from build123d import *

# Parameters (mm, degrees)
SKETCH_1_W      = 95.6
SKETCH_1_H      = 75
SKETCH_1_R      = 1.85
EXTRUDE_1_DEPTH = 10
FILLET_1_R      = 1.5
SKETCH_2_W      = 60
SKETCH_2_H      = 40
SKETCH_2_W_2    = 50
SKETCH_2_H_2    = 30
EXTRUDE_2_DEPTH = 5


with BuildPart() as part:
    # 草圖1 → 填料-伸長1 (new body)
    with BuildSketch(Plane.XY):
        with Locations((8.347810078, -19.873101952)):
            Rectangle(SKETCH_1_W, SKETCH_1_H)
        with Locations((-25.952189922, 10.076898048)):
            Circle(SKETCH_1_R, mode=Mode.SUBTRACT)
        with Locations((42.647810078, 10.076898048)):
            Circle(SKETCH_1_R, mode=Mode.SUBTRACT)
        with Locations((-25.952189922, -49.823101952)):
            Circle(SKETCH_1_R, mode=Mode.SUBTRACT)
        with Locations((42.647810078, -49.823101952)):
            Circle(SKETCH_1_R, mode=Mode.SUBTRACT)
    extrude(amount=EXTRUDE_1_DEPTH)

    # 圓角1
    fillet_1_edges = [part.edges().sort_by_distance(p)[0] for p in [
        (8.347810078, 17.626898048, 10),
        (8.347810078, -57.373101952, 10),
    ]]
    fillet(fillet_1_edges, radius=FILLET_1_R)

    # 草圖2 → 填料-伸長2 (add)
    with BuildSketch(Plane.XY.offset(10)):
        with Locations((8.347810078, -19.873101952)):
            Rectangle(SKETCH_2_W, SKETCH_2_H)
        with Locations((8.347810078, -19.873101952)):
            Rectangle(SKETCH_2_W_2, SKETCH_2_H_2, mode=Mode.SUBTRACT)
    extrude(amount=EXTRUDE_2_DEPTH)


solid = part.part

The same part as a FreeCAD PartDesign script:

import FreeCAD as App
import Part
import Sketcher
Q = App.Units.Quantity


def edges_at(feature, points):
    """Names of the edges that pass closest to the given points."""
    edges = feature.Shape.Edges
    near = lambda p: min(range(len(edges)), key=lambda i: edges[i].distToShape(Part.Vertex(*p))[0])
    return sorted({f"Edge{near(p) + 1}" for p in points})

doc = App.newDocument("Part")
body = doc.addObject("PartDesign::Body", "Body")

sketch1 = body.newObject("Sketcher::SketchObject", "Sketch")
sketch1.AttachmentSupport = (doc.getObject("XY_Plane"), [""])
sketch1.MapMode = "FlatFace"
sketch1.addGeometry([
    Part.LineSegment(App.Vector(-39.5, 17.6, 0), App.Vector(-39.5, -57.4, 0)),
    Part.LineSegment(App.Vector(-39.5, -57.4, 0), App.Vector(56.1, -57.4, 0)),
    Part.LineSegment(App.Vector(56.1, -57.4, 0), App.Vector(56.1, 17.6, 0)),
    Part.LineSegment(App.Vector(56.1, 17.6, 0), App.Vector(-39.5, 17.6, 0)),
    Part.Circle(App.Vector(-26, -49.8, 0), App.Vector(0, 0, 1), 1.9),
    Part.Circle(App.Vector(42.6, -49.8, 0), App.Vector(0, 0, 1), 1.9),
    Part.Circle(App.Vector(-26, 10.1, 0), App.Vector(0, 0, 1), 1.9),
    Part.Circle(App.Vector(42.6, 10.1, 0), App.Vector(0, 0, 1), 1.9),
], False)
sketch1.addConstraint([
    Sketcher.Constraint("Coincident", 0, 2, 1, 1),
    Sketcher.Constraint("Coincident", 1, 2, 2, 1),
    Sketcher.Constraint("Coincident", 2, 2, 3, 1),
    Sketcher.Constraint("Coincident", 3, 2, 0, 1),
    Sketcher.Constraint("Vertical", 0),
    Sketcher.Constraint("Horizontal", 1),
    Sketcher.Constraint("Vertical", 2),
    Sketcher.Constraint("Horizontal", 3),
    Sketcher.Constraint("Equal", 4, 5),
    Sketcher.Constraint("Equal", 5, 6),
    Sketcher.Constraint("Equal", 6, 7),
    Sketcher.Constraint("Horizontal", 4, 3, 5, 3),
    Sketcher.Constraint("Horizontal", 6, 3, 7, 3),
    Sketcher.Constraint("Vertical", 4, 3, 6, 3),
    Sketcher.Constraint("Vertical", 5, 3, 7, 3),
    Sketcher.Constraint("Diameter", 4, Q("3.7 mm")),
    Sketcher.Constraint("DistanceY", 0, 2, 0, 1, Q("75 mm")),
    Sketcher.Constraint("DistanceX", 1, 1, 1, 2, Q("95.6 mm")),
    Sketcher.Constraint("DistanceX", 4, 3, 5, 3, Q("68.6 mm")),
    Sketcher.Constraint("DistanceY", 4, 3, 6, 3, Q("59.9 mm")),
    Sketcher.Constraint("DistanceX", 0, 2, 4, 3, Q("13.5 mm")),
    Sketcher.Constraint("DistanceY", 0, 2, 4, 3, Q("7.55 mm")),
    Sketcher.Constraint("DistanceY", 4, 3, -1, 1, Q("49.823102 mm")),
    Sketcher.Constraint("DistanceX", 4, 3, -1, 1, Q("25.95219 mm")),
])
pad1 = body.newObject("PartDesign::Pad", "Pad")
pad1.Profile = sketch1
pad1.Length = 10
doc.recompute()

fillet = body.newObject("PartDesign::Fillet", "Fillet")
fillet.Base = (pad1, edges_at(pad1, [(8.348, 17.627, 10), (8.348, -57.373, 10)]))
fillet.Radius = 1.5

sketch2 = body.newObject("Sketcher::SketchObject", "Sketch001")
sketch2.AttachmentSupport = (doc.getObject("XY_Plane"), [""])
sketch2.MapMode = "FlatFace"
sketch2.AttachmentOffset = App.Placement(App.Vector(0, 0, 10), App.Rotation())
sketch2.addGeometry([
    Part.LineSegment(App.Vector(-22, 0, 0), App.Vector(-22, -40, 0)),
    Part.LineSegment(App.Vector(-22, -40, 0), App.Vector(38, -40, 0)),
    Part.LineSegment(App.Vector(38, -40, 0), App.Vector(38, 0, 0)),
    Part.LineSegment(App.Vector(38, 0, 0), App.Vector(-22, 0, 0)),
    Part.LineSegment(App.Vector(33, -35, 0), App.Vector(-17, -35, 0)),
    Part.LineSegment(App.Vector(-17, -35, 0), App.Vector(-17, -5, 0)),
    Part.LineSegment(App.Vector(-17, -5, 0), App.Vector(33, -5, 0)),
    Part.LineSegment(App.Vector(33, -5, 0), App.Vector(33, -35, 0)),
], False)
sketch2.addConstraint([
    Sketcher.Constraint("Coincident", 0, 2, 1, 1),
    Sketcher.Constraint("Coincident", 1, 2, 2, 1),
    Sketcher.Constraint("Coincident", 2, 2, 3, 1),
    Sketcher.Constraint("Coincident", 3, 2, 0, 1),
    Sketcher.Constraint("Coincident", 4, 2, 5, 1),
    Sketcher.Constraint("Coincident", 5, 2, 6, 1),
    Sketcher.Constraint("Coincident", 6, 2, 7, 1),
    Sketcher.Constraint("Coincident", 7, 2, 4, 1),
    Sketcher.Constraint("Vertical", 0),
    Sketcher.Constraint("Horizontal", 1),
    Sketcher.Constraint("Vertical", 2),
    Sketcher.Constraint("Horizontal", 3),
    Sketcher.Constraint("Horizontal", 4),
    Sketcher.Constraint("Vertical", 5),
    Sketcher.Constraint("Horizontal", 6),
    Sketcher.Constraint("Vertical", 7),
    Sketcher.Constraint("DistanceX", 1, 1, 1, 2, Q("60 mm")),
    Sketcher.Constraint("DistanceX", 4, 2, 4, 1, Q("50 mm")),
    Sketcher.Constraint("DistanceY", 0, 2, 0, 1, Q("40 mm")),
    Sketcher.Constraint("DistanceY", 5, 1, 5, 2, Q("30 mm")),
    Sketcher.Constraint("DistanceX", 0, 2, 4, 2, Q("5 mm")),
    Sketcher.Constraint("DistanceY", 0, 2, 4, 2, Q("5 mm")),
    Sketcher.Constraint("DistanceY", 0, 2, -1, 1, Q("39.873102 mm")),
    Sketcher.Constraint("DistanceX", 0, 2, -1, 1, Q("21.65219 mm")),
])
pad2 = body.newObject("PartDesign::Pad", "Pad001")
pad2.Profile = sketch2
pad2.Length = 5

doc.recompute()
